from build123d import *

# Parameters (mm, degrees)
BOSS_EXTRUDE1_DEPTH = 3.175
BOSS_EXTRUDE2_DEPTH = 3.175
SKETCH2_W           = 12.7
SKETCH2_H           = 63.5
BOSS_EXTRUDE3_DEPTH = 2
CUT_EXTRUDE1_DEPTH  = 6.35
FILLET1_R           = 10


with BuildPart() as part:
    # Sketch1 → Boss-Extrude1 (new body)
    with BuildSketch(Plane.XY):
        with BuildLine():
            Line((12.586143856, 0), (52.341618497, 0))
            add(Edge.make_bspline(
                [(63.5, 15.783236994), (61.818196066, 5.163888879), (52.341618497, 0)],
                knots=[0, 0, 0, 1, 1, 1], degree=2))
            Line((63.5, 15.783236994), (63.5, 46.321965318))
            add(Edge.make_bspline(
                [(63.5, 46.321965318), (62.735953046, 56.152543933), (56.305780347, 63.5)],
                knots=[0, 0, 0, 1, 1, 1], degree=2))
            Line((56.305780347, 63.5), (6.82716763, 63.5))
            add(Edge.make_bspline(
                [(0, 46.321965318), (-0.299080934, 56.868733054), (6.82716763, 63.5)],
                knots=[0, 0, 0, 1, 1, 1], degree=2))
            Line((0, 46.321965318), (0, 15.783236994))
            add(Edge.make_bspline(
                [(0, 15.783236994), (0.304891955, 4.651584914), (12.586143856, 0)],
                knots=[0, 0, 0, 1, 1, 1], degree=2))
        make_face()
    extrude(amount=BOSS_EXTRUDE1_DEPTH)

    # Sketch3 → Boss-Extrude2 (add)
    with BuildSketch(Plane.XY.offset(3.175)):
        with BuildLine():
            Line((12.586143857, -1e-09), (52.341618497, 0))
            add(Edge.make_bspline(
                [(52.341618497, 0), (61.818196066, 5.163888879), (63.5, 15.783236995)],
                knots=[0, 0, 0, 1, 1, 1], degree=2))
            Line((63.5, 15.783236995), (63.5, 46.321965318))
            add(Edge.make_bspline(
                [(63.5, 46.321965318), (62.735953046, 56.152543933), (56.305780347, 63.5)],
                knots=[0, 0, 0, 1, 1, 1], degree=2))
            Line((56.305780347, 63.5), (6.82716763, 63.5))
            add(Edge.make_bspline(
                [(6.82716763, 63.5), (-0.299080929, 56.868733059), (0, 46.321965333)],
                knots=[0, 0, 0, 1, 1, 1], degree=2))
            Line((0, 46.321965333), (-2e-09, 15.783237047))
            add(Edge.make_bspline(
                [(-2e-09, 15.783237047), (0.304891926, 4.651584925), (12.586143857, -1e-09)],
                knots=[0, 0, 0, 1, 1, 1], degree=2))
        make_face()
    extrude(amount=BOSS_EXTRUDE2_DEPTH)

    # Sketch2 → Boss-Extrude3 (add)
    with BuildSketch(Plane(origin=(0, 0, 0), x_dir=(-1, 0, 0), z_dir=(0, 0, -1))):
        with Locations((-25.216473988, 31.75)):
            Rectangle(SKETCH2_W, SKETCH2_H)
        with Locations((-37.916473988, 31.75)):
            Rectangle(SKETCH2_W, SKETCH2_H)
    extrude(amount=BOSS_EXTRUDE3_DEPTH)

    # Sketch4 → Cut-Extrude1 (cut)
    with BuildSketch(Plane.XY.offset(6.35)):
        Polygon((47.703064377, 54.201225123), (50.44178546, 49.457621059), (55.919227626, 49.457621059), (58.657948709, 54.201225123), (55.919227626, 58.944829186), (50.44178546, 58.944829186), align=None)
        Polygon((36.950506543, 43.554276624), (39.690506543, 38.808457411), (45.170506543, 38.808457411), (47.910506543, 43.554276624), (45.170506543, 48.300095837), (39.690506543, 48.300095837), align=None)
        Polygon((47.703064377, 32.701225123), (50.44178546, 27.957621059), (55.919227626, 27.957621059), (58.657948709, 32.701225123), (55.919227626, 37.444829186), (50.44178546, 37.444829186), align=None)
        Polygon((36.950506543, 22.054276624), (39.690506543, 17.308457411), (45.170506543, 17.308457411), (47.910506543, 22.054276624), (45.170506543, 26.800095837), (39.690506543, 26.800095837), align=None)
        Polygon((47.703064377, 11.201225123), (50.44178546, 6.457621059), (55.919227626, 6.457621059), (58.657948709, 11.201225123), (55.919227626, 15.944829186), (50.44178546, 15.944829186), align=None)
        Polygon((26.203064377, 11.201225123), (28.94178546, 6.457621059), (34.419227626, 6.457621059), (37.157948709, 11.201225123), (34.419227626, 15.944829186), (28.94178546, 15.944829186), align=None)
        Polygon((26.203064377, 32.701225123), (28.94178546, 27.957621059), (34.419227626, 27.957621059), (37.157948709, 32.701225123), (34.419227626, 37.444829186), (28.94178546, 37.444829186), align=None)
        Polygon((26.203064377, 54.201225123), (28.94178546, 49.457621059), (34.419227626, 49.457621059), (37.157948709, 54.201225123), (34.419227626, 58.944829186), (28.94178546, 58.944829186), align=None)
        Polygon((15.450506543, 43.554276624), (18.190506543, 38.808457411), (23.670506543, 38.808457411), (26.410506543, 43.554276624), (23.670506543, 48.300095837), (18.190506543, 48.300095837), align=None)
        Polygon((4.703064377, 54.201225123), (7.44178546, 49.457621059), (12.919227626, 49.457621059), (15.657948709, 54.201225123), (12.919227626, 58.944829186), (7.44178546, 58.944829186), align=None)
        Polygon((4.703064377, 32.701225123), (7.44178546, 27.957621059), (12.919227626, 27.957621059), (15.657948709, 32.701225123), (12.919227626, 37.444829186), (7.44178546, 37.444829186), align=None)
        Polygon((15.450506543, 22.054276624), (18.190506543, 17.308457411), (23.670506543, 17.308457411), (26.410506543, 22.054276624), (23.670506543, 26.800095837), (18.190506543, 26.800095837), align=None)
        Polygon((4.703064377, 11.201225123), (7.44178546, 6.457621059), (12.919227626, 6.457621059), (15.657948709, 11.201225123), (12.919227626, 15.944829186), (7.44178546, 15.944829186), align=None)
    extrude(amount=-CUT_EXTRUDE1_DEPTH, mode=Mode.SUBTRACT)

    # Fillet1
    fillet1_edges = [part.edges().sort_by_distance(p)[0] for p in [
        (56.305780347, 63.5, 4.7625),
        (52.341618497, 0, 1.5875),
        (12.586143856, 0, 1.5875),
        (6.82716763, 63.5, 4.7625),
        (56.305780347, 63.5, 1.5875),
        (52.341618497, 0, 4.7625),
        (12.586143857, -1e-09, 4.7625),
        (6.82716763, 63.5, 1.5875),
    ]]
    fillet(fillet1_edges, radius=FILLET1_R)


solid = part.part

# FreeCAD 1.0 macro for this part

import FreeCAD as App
import Part
import Sketcher
Q = App.Units.Quantity


def edges_at(feature, points):
    """Names of the edges that pass closest to the given points."""
    edges = feature.Shape.Edges
    near = lambda p: min(range(len(edges)), key=lambda i: edges[i].distToShape(Part.Vertex(*p))[0])
    return sorted({f"Edge{near(p) + 1}" for p in points})

doc = App.newDocument("Part")
params = doc.addObject("Spreadsheet::Sheet", "Params")
for row, (alias, value) in enumerate([
    ("pad1_length", "0.125 in"),
    ("pad2_length", "0.125 in"),
    ("sketch3_width", "1 in"),
    ("sketch3_height", "2.5 in"),
    ("pad3_length", "2 mm"),
    ("pocket1_length", "0.25 in"),
    ("fillet_radius", "10 mm"),
], start=1):
    params.set(f"A{row}", alias)
    params.set(f"B{row}", "=" + value)
    params.setAlias(f"B{row}", alias)

body = doc.addObject("PartDesign::Body", "Body")

# Sketch on XY plane
sketch1 = body.newObject("Sketcher::SketchObject", "Sketch")
sketch1.AttachmentSupport = (doc.getObject("XY_Plane"), [""])
sketch1.MapMode = "FlatFace"
sketch1.addGeometry([
    Part.LineSegment(App.Vector(12.586144, 0, 0), App.Vector(52.341618, 0, 0)),  # 0
    Part.BSplineCurve([App.Vector(63.5, 15.783237, 0), App.Vector(61.818196, 5.163889, 0), App.Vector(52.341618, 0, 0)], [3, 3], [0, 1], False, 2, [1, 1, 1], False),  # 1
    Part.LineSegment(App.Vector(63.5, 15.783237, 0), App.Vector(63.5, 46.321965, 0)),  # 2
    Part.BSplineCurve([App.Vector(63.5, 46.321965, 0), App.Vector(62.735953, 56.152544, 0), App.Vector(56.30578, 63.5, 0)], [3, 3], [0, 1], False, 2, [1, 1, 1], False),  # 3
    Part.LineSegment(App.Vector(56.30578, 63.5, 0), App.Vector(6.827168, 63.5, 0)),  # 4
    Part.BSplineCurve([App.Vector(0, 46.321965, 0), App.Vector(-0.299081, 56.868733, 0), App.Vector(6.827168, 63.5, 0)], [3, 3], [0, 1], False, 2, [1, 1, 1], False),  # 5
    Part.LineSegment(App.Vector(0, 46.321965, 0), App.Vector(0, 15.783237, 0)),  # 6
    Part.BSplineCurve([App.Vector(0, 15.783237, 0), App.Vector(0.304892, 4.651585, 0), App.Vector(12.586144, 0, 0)], [3, 3], [0, 1], False, 2, [1, 1, 1], False),  # 7
], False)
sketch1.addConstraint([
    Sketcher.Constraint("Block", 1),
    Sketcher.Constraint("Block", 3),
    Sketcher.Constraint("Block", 5),
    Sketcher.Constraint("Block", 7),
    Sketcher.Constraint("Coincident", 0, 2, 1, 2),
    Sketcher.Constraint("Coincident", 1, 1, 2, 1),
    Sketcher.Constraint("Coincident", 2, 2, 3, 1),
    Sketcher.Constraint("Coincident", 3, 2, 4, 1),
    Sketcher.Constraint("Coincident", 4, 2, 5, 2),
    Sketcher.Constraint("Coincident", 5, 1, 6, 1),
    Sketcher.Constraint("Coincident", 6, 2, 7, 1),
    Sketcher.Constraint("Coincident", 7, 2, 0, 1),
])
pad1 = body.newObject("PartDesign::Pad", "Pad")
pad1.Profile = sketch1
pad1.setExpression("Length", "Params.pad1_length")

# Sketch on XY plane
sketch2 = body.newObject("Sketcher::SketchObject", "Sketch001")
sketch2.AttachmentSupport = (doc.getObject("XY_Plane"), [""])
sketch2.MapMode = "FlatFace"
sketch2.AttachmentOffset = App.Placement(App.Vector(0, 0, 0.125 * 25.4), App.Rotation())
sketch2.addGeometry([
    Part.LineSegment(App.Vector(12.586144, 0, 0), App.Vector(52.341618, 0, 0)),  # 0
    Part.BSplineCurve([App.Vector(52.341618, 0, 0), App.Vector(61.818196, 5.163889, 0), App.Vector(63.5, 15.783237, 0)], [3, 3], [0, 1], False, 2, [1, 1, 1], False),  # 1
    Part.LineSegment(App.Vector(63.5, 15.783237, 0), App.Vector(63.5, 46.321965, 0)),  # 2
    Part.BSplineCurve([App.Vector(63.5, 46.321965, 0), App.Vector(62.735953, 56.152544, 0), App.Vector(56.30578, 63.5, 0)], [3, 3], [0, 1], False, 2, [1, 1, 1], False),  # 3
    Part.LineSegment(App.Vector(56.30578, 63.5, 0), App.Vector(6.827168, 63.5, 0)),  # 4
    Part.BSplineCurve([App.Vector(6.827168, 63.5, 0), App.Vector(-0.299081, 56.868733, 0), App.Vector(0, 46.321965, 0)], [3, 3], [0, 1], False, 2, [1, 1, 1], False),  # 5
    Part.LineSegment(App.Vector(0, 46.321965, 0), App.Vector(0, 15.783237, 0)),  # 6
    Part.BSplineCurve([App.Vector(0, 15.783237, 0), App.Vector(0.304892, 4.651585, 0), App.Vector(12.586144, 0, 0)], [3, 3], [0, 1], False, 2, [1, 1, 1], False),  # 7
], False)
sketch2.addConstraint([
    Sketcher.Constraint("Block", 1),
    Sketcher.Constraint("Block", 3),
    Sketcher.Constraint("Block", 5),
    Sketcher.Constraint("Block", 7),
    Sketcher.Constraint("Coincident", 0, 2, 1, 1),
    Sketcher.Constraint("Coincident", 1, 2, 2, 1),
    Sketcher.Constraint("Coincident", 2, 2, 3, 1),
    Sketcher.Constraint("Coincident", 3, 2, 4, 1),
    Sketcher.Constraint("Coincident", 4, 2, 5, 1),
    Sketcher.Constraint("Coincident", 5, 2, 6, 1),
    Sketcher.Constraint("Coincident", 6, 2, 7, 1),
    Sketcher.Constraint("Coincident", 7, 2, 0, 1),
])
pad2 = body.newObject("PartDesign::Pad", "Pad001")
pad2.Profile = sketch2
pad2.setExpression("Length", "Params.pad2_length")

# Sketch on XY plane
sketch3 = body.newObject("Sketcher::SketchObject", "Sketch002")
sketch3.AttachmentSupport = (doc.getObject("XY_Plane"), [""])
sketch3.MapMode = "FlatFace"
sketch3.addGeometry([
    Part.LineSegment(App.Vector(19, 0, 0), App.Vector(19, 64, 0)),
    Part.LineSegment(App.Vector(19, 64, 0), App.Vector(44, 64, 0)),
    Part.LineSegment(App.Vector(44, 64, 0), App.Vector(44, 0, 0)),
    Part.LineSegment(App.Vector(44, 0, 0), App.Vector(19, 0, 0)),
], False)
sketch3.addConstraint([
    Sketcher.Constraint("Coincident", 0, 2, 1, 1),
    Sketcher.Constraint("Coincident", 1, 2, 2, 1),
    Sketcher.Constraint("Coincident", 2, 2, 3, 1),
    Sketcher.Constraint("Coincident", 3, 2, 0, 1),
    Sketcher.Constraint("Vertical", 0),
    Sketcher.Constraint("Horizontal", 1),
    Sketcher.Constraint("Vertical", 2),
    Sketcher.Constraint("Horizontal", 3),
    Sketcher.Constraint("PointOnObject", 2, 2, -1),
    Sketcher.Constraint("DistanceX", 1, 1, 1, 2, Q("1 in")),
    Sketcher.Constraint("DistanceY", 0, 1, 0, 2, Q("2.5 in")),
    Sketcher.Constraint("DistanceX", -1, 1, 0, 2, Q("18.866474 mm")),
])
sketch3.setExpression("Constraints[9]", "Params.sketch3_width")
sketch3.setExpression("Constraints[10]", "Params.sketch3_height")
pad3 = body.newObject("PartDesign::Pad", "Pad002")
pad3.Profile = sketch3
pad3.setExpression("Length", "Params.pad3_length")
pad3.Reversed = True

# Sketch on XY plane
sketch4 = body.newObject("Sketcher::SketchObject", "Sketch003")
sketch4.AttachmentSupport = (doc.getObject("XY_Plane"), [""])
sketch4.MapMode = "FlatFace"
sketch4.AttachmentOffset = App.Placement(App.Vector(0, 0, 0.25 * 25.4), App.Rotation())
sketch4.addGeometry([
    Part.LineSegment(App.Vector(48, 54, 0), App.Vector(50, 49, 0)),  # 0
    Part.LineSegment(App.Vector(50, 49, 0), App.Vector(56, 49, 0)),  # 1
    Part.LineSegment(App.Vector(56, 49, 0), App.Vector(59, 54, 0)),  # 2
    Part.LineSegment(App.Vector(59, 54, 0), App.Vector(56, 59, 0)),  # 3
    Part.LineSegment(App.Vector(56, 59, 0), App.Vector(50, 59, 0)),  # 4
    Part.LineSegment(App.Vector(50, 59, 0), App.Vector(48, 54, 0)),  # 5
    Part.LineSegment(App.Vector(37, 44, 0), App.Vector(40, 39, 0)),  # 6
    Part.LineSegment(App.Vector(40, 39, 0), App.Vector(45, 39, 0)),  # 7
    Part.LineSegment(App.Vector(45, 39, 0), App.Vector(48, 44, 0)),  # 8
    Part.LineSegment(App.Vector(48, 44, 0), App.Vector(45, 48, 0)),  # 9
    Part.LineSegment(App.Vector(45, 48, 0), App.Vector(40, 48, 0)),  # 10
    Part.LineSegment(App.Vector(40, 48, 0), App.Vector(37, 44, 0)),  # 11
    Part.LineSegment(App.Vector(48, 33, 0), App.Vector(50, 28, 0)),  # 12
    Part.LineSegment(App.Vector(50, 28, 0), App.Vector(56, 28, 0)),  # 13
    Part.LineSegment(App.Vector(56, 28, 0), App.Vector(59, 33, 0)),  # 14
    Part.LineSegment(App.Vector(59, 33, 0), App.Vector(56, 37, 0)),  # 15
    Part.LineSegment(App.Vector(56, 37, 0), App.Vector(50, 37, 0)),  # 16
    Part.LineSegment(App.Vector(50, 37, 0), App.Vector(48, 33, 0)),  # 17
    Part.LineSegment(App.Vector(37, 22, 0), App.Vector(40, 17, 0)),  # 18
    Part.LineSegment(App.Vector(40, 17, 0), App.Vector(45, 17, 0)),  # 19
    Part.LineSegment(App.Vector(45, 17, 0), App.Vector(48, 22, 0)),  # 20
    Part.LineSegment(App.Vector(48, 22, 0), App.Vector(45, 27, 0)),  # 21
    Part.LineSegment(App.Vector(45, 27, 0), App.Vector(40, 27, 0)),  # 22
    Part.LineSegment(App.Vector(40, 27, 0), App.Vector(37, 22, 0)),  # 23
    Part.LineSegment(App.Vector(48, 11, 0), App.Vector(50, 6, 0)),  # 24
    Part.LineSegment(App.Vector(50, 6, 0), App.Vector(56, 6, 0)),  # 25
    Part.LineSegment(App.Vector(56, 6, 0), App.Vector(59, 11, 0)),  # 26
    Part.LineSegment(App.Vector(59, 11, 0), App.Vector(56, 16, 0)),  # 27
    Part.LineSegment(App.Vector(56, 16, 0), App.Vector(50, 16, 0)),  # 28
    Part.LineSegment(App.Vector(50, 16, 0), App.Vector(48, 11, 0)),  # 29
    Part.LineSegment(App.Vector(26, 11, 0), App.Vector(29, 6, 0)),  # 30
    Part.LineSegment(App.Vector(29, 6, 0), App.Vector(34, 6, 0)),  # 31
    Part.LineSegment(App.Vector(34, 6, 0), App.Vector(37, 11, 0)),  # 32
    Part.LineSegment(App.Vector(37, 11, 0), App.Vector(34, 16, 0)),  # 33
    Part.LineSegment(App.Vector(34, 16, 0), App.Vector(29, 16, 0)),  # 34
    Part.LineSegment(App.Vector(29, 16, 0), App.Vector(26, 11, 0)),  # 35
    Part.LineSegment(App.Vector(26, 33, 0), App.Vector(29, 28, 0)),  # 36
    Part.LineSegment(App.Vector(29, 28, 0), App.Vector(34, 28, 0)),  # 37
    Part.LineSegment(App.Vector(34, 28, 0), App.Vector(37, 33, 0)),  # 38
    Part.LineSegment(App.Vector(37, 33, 0), App.Vector(34, 37, 0)),  # 39
    Part.LineSegment(App.Vector(34, 37, 0), App.Vector(29, 37, 0)),  # 40
    Part.LineSegment(App.Vector(29, 37, 0), App.Vector(26, 33, 0)),  # 41
    Part.LineSegment(App.Vector(26, 54, 0), App.Vector(29, 49, 0)),  # 42
    Part.LineSegment(App.Vector(29, 49, 0), App.Vector(34, 49, 0)),  # 43
    Part.LineSegment(App.Vector(34, 49, 0), App.Vector(37, 54, 0)),  # 44
    Part.LineSegment(App.Vector(37, 54, 0), App.Vector(34, 59, 0)),  # 45
    Part.LineSegment(App.Vector(34, 59, 0), App.Vector(29, 59, 0)),  # 46
    Part.LineSegment(App.Vector(29, 59, 0), App.Vector(26, 54, 0)),  # 47
    Part.LineSegment(App.Vector(15, 44, 0), App.Vector(18, 39, 0)),  # 48
    Part.LineSegment(App.Vector(18, 39, 0), App.Vector(24, 39, 0)),  # 49
    Part.LineSegment(App.Vector(24, 39, 0), App.Vector(26, 44, 0)),  # 50
    Part.LineSegment(App.Vector(26, 44, 0), App.Vector(24, 48, 0)),  # 51
    Part.LineSegment(App.Vector(24, 48, 0), App.Vector(18, 48, 0)),  # 52
    Part.LineSegment(App.Vector(18, 48, 0), App.Vector(15, 44, 0)),  # 53
    Part.LineSegment(App.Vector(5, 54, 0), App.Vector(7, 49, 0)),  # 54
    Part.LineSegment(App.Vector(7, 49, 0), App.Vector(13, 49, 0)),  # 55
    Part.LineSegment(App.Vector(13, 49, 0), App.Vector(16, 54, 0)),  # 56
    Part.LineSegment(App.Vector(16, 54, 0), App.Vector(13, 59, 0)),  # 57
    Part.LineSegment(App.Vector(13, 59, 0), App.Vector(7, 59, 0)),  # 58
    Part.LineSegment(App.Vector(7, 59, 0), App.Vector(5, 54, 0)),  # 59
    Part.LineSegment(App.Vector(5, 33, 0), App.Vector(7, 28, 0)),  # 60
    Part.LineSegment(App.Vector(7, 28, 0), App.Vector(13, 28, 0)),  # 61
    Part.LineSegment(App.Vector(13, 28, 0), App.Vector(16, 33, 0)),  # 62
    Part.LineSegment(App.Vector(16, 33, 0), App.Vector(13, 37, 0)),  # 63
    Part.LineSegment(App.Vector(13, 37, 0), App.Vector(7, 37, 0)),  # 64
    Part.LineSegment(App.Vector(7, 37, 0), App.Vector(5, 33, 0)),  # 65
    Part.LineSegment(App.Vector(15, 22, 0), App.Vector(18, 17, 0)),  # 66
    Part.LineSegment(App.Vector(18, 17, 0), App.Vector(24, 17, 0)),  # 67
    Part.LineSegment(App.Vector(24, 17, 0), App.Vector(26, 22, 0)),  # 68
    Part.LineSegment(App.Vector(26, 22, 0), App.Vector(24, 27, 0)),  # 69
    Part.LineSegment(App.Vector(24, 27, 0), App.Vector(18, 27, 0)),  # 70
    Part.LineSegment(App.Vector(18, 27, 0), App.Vector(15, 22, 0)),  # 71
    Part.LineSegment(App.Vector(5, 11, 0), App.Vector(7, 6, 0)),  # 72
    Part.LineSegment(App.Vector(7, 6, 0), App.Vector(13, 6, 0)),  # 73
    Part.LineSegment(App.Vector(13, 6, 0), App.Vector(16, 11, 0)),  # 74
    Part.LineSegment(App.Vector(16, 11, 0), App.Vector(13, 16, 0)),  # 75
    Part.LineSegment(App.Vector(13, 16, 0), App.Vector(7, 16, 0)),  # 76
    Part.LineSegment(App.Vector(7, 16, 0), App.Vector(5, 11, 0)),  # 77
], False)
sketch4.addConstraint([
    Sketcher.Constraint("Coincident", 0, 2, 1, 1),
    Sketcher.Constraint("Coincident", 1, 2, 2, 1),
    Sketcher.Constraint("Coincident", 2, 2, 3, 1),
    Sketcher.Constraint("Coincident", 3, 2, 4, 1),
    Sketcher.Constraint("Coincident", 4, 2, 5, 1),
    Sketcher.Constraint("Coincident", 5, 2, 0, 1),
    Sketcher.Constraint("Coincident", 6, 2, 7, 1),
    Sketcher.Constraint("Coincident", 7, 2, 8, 1),
    Sketcher.Constraint("Coincident", 8, 2, 9, 1),
    Sketcher.Constraint("Coincident", 9, 2, 10, 1),
    Sketcher.Constraint("Coincident", 10, 2, 11, 1),
    Sketcher.Constraint("Coincident", 11, 2, 6, 1),
    Sketcher.Constraint("Coincident", 12, 2, 13, 1),
    Sketcher.Constraint("Coincident", 13, 2, 14, 1),
    Sketcher.Constraint("Coincident", 14, 2, 15, 1),
    Sketcher.Constraint("Coincident", 15, 2, 16, 1),
    Sketcher.Constraint("Coincident", 16, 2, 17, 1),
    Sketcher.Constraint("Coincident", 17, 2, 12, 1),
    Sketcher.Constraint("Coincident", 18, 2, 19, 1),
    Sketcher.Constraint("Coincident", 19, 2, 20, 1),
    Sketcher.Constraint("Coincident", 20, 2, 21, 1),
    Sketcher.Constraint("Coincident", 21, 2, 22, 1),
    Sketcher.Constraint("Coincident", 22, 2, 23, 1),
    Sketcher.Constraint("Coincident", 23, 2, 18, 1),
    Sketcher.Constraint("Coincident", 24, 2, 25, 1),
    Sketcher.Constraint("Coincident", 25, 2, 26, 1),
    Sketcher.Constraint("Coincident", 26, 2, 27, 1),
    Sketcher.Constraint("Coincident", 27, 2, 28, 1),
    Sketcher.Constraint("Coincident", 28, 2, 29, 1),
    Sketcher.Constraint("Coincident", 29, 2, 24, 1),
    Sketcher.Constraint("Coincident", 30, 2, 31, 1),
    Sketcher.Constraint("Coincident", 31, 2, 32, 1),
    Sketcher.Constraint("Coincident", 32, 2, 33, 1),
    Sketcher.Constraint("Coincident", 33, 2, 34, 1),
    Sketcher.Constraint("Coincident", 34, 2, 35, 1),
    Sketcher.Constraint("Coincident", 35, 2, 30, 1),
    Sketcher.Constraint("Coincident", 36, 2, 37, 1),
    Sketcher.Constraint("Coincident", 37, 2, 38, 1),
    Sketcher.Constraint("Coincident", 38, 2, 39, 1),
    Sketcher.Constraint("Coincident", 39, 2, 40, 1),
    Sketcher.Constraint("Coincident", 40, 2, 41, 1),
    Sketcher.Constraint("Coincident", 41, 2, 36, 1),
    Sketcher.Constraint("Coincident", 42, 2, 43, 1),
    Sketcher.Constraint("Coincident", 43, 2, 44, 1),
    Sketcher.Constraint("Coincident", 44, 2, 45, 1),
    Sketcher.Constraint("Coincident", 45, 2, 46, 1),
    Sketcher.Constraint("Coincident", 46, 2, 47, 1),
    Sketcher.Constraint("Coincident", 47, 2, 42, 1),
    Sketcher.Constraint("Coincident", 48, 2, 49, 1),
    Sketcher.Constraint("Coincident", 49, 2, 50, 1),
    Sketcher.Constraint("Coincident", 50, 2, 51, 1),
    Sketcher.Constraint("Coincident", 51, 2, 52, 1),
    Sketcher.Constraint("Coincident", 52, 2, 53, 1),
    Sketcher.Constraint("Coincident", 53, 2, 48, 1),
    Sketcher.Constraint("Coincident", 54, 2, 55, 1),
    Sketcher.Constraint("Coincident", 55, 2, 56, 1),
    Sketcher.Constraint("Coincident", 56, 2, 57, 1),
    Sketcher.Constraint("Coincident", 57, 2, 58, 1),
    Sketcher.Constraint("Coincident", 58, 2, 59, 1),
    Sketcher.Constraint("Coincident", 59, 2, 54, 1),
    Sketcher.Constraint("Coincident", 60, 2, 61, 1),
    Sketcher.Constraint("Coincident", 61, 2, 62, 1),
    Sketcher.Constraint("Coincident", 62, 2, 63, 1),
    Sketcher.Constraint("Coincident", 63, 2, 64, 1),
    Sketcher.Constraint("Coincident", 64, 2, 65, 1),
    Sketcher.Constraint("Coincident", 65, 2, 60, 1),
    Sketcher.Constraint("Coincident", 66, 2, 67, 1),
    Sketcher.Constraint("Coincident", 67, 2, 68, 1),
    Sketcher.Constraint("Coincident", 68, 2, 69, 1),
    Sketcher.Constraint("Coincident", 69, 2, 70, 1),
    Sketcher.Constraint("Coincident", 70, 2, 71, 1),
    Sketcher.Constraint("Coincident", 71, 2, 66, 1),
    Sketcher.Constraint("Coincident", 72, 2, 73, 1),
    Sketcher.Constraint("Coincident", 73, 2, 74, 1),
    Sketcher.Constraint("Coincident", 74, 2, 75, 1),
    Sketcher.Constraint("Coincident", 75, 2, 76, 1),
    Sketcher.Constraint("Coincident", 76, 2, 77, 1),
    Sketcher.Constraint("Coincident", 77, 2, 72, 1),
    Sketcher.Constraint("Horizontal", 1),
    Sketcher.Constraint("Horizontal", 4),
    Sketcher.Constraint("Horizontal", 7),
    Sketcher.Constraint("Horizontal", 10),
    Sketcher.Constraint("Horizontal", 13),
    Sketcher.Constraint("Horizontal", 16),
    Sketcher.Constraint("Horizontal", 19),
    Sketcher.Constraint("Horizontal", 22),
    Sketcher.Constraint("Horizontal", 25),
    Sketcher.Constraint("Horizontal", 28),
    Sketcher.Constraint("Horizontal", 31),
    Sketcher.Constraint("Horizontal", 34),
    Sketcher.Constraint("Horizontal", 37),
    Sketcher.Constraint("Horizontal", 40),
    Sketcher.Constraint("Horizontal", 43),
    Sketcher.Constraint("Horizontal", 46),
    Sketcher.Constraint("Horizontal", 49),
    Sketcher.Constraint("Horizontal", 52),
    Sketcher.Constraint("Horizontal", 55),
    Sketcher.Constraint("Horizontal", 58),
    Sketcher.Constraint("Horizontal", 61),
    Sketcher.Constraint("Horizontal", 64),
    Sketcher.Constraint("Horizontal", 67),
    Sketcher.Constraint("Horizontal", 70),
    Sketcher.Constraint("Horizontal", 73),
    Sketcher.Constraint("Horizontal", 76),
    Sketcher.Constraint("Parallel", 0, 3),
    Sketcher.Constraint("Parallel", 2, 5),
    Sketcher.Constraint("Parallel", 3, 6),
    Sketcher.Constraint("Parallel", 5, 8),
    Sketcher.Constraint("Parallel", 6, 9),
    Sketcher.Constraint("Parallel", 8, 11),
    Sketcher.Constraint("Parallel", 9, 12),
    Sketcher.Constraint("Parallel", 11, 14),
    Sketcher.Constraint("Parallel", 12, 15),
    Sketcher.Constraint("Parallel", 14, 17),
    Sketcher.Constraint("Parallel", 15, 18),
    Sketcher.Constraint("Parallel", 17, 20),
    Sketcher.Constraint("Parallel", 18, 21),
    Sketcher.Constraint("Parallel", 20, 23),
    Sketcher.Constraint("Parallel", 21, 24),
    Sketcher.Constraint("Parallel", 23, 26),
    Sketcher.Constraint("Parallel", 24, 27),
    Sketcher.Constraint("Parallel", 26, 29),
    Sketcher.Constraint("Parallel", 27, 30),
    Sketcher.Constraint("Parallel", 29, 32),
    Sketcher.Constraint("Parallel", 30, 33),
    Sketcher.Constraint("Parallel", 32, 35),
    Sketcher.Constraint("Parallel", 33, 36),
    Sketcher.Constraint("Parallel", 35, 38),
    Sketcher.Constraint("Parallel", 36, 39),
    Sketcher.Constraint("Parallel", 38, 41),
    Sketcher.Constraint("Parallel", 39, 42),
    Sketcher.Constraint("Parallel", 41, 44),
    Sketcher.Constraint("Parallel", 42, 45),
    Sketcher.Constraint("Parallel", 44, 47),
    Sketcher.Constraint("Parallel", 45, 48),
    Sketcher.Constraint("Parallel", 47, 50),
    Sketcher.Constraint("Parallel", 48, 51),
    Sketcher.Constraint("Parallel", 50, 53),
    Sketcher.Constraint("Parallel", 51, 54),
    Sketcher.Constraint("Parallel", 53, 56),
    Sketcher.Constraint("Parallel", 54, 57),
    Sketcher.Constraint("Parallel", 56, 59),
    Sketcher.Constraint("Parallel", 57, 60),
    Sketcher.Constraint("Parallel", 59, 62),
    Sketcher.Constraint("Parallel", 60, 63),
    Sketcher.Constraint("Parallel", 62, 65),
    Sketcher.Constraint("Parallel", 63, 66),
    Sketcher.Constraint("Parallel", 65, 68),
    Sketcher.Constraint("Parallel", 66, 69),
    Sketcher.Constraint("Parallel", 68, 71),
    Sketcher.Constraint("Parallel", 69, 72),
    Sketcher.Constraint("Parallel", 71, 74),
    Sketcher.Constraint("Parallel", 72, 75),
    Sketcher.Constraint("Parallel", 74, 77),
    Sketcher.Constraint("Horizontal", 2, 2, 5, 2),
    Sketcher.Constraint("Horizontal", 8, 2, 11, 2),
    Sketcher.Constraint("Horizontal", 14, 2, 17, 2),
    Sketcher.Constraint("Horizontal", 20, 2, 23, 2),
    Sketcher.Constraint("Horizontal", 26, 2, 29, 2),
    Sketcher.Constraint("Horizontal", 25, 2, 30, 2),
    Sketcher.Constraint("Horizontal", 29, 2, 32, 2),
    Sketcher.Constraint("Horizontal", 28, 2, 33, 2),
    Sketcher.Constraint("Horizontal", 32, 2, 35, 2),
    Sketcher.Constraint("Horizontal", 13, 2, 36, 2),
    Sketcher.Constraint("Horizontal", 17, 2, 38, 2),
    Sketcher.Constraint("Horizontal", 16, 2, 39, 2),
    Sketcher.Constraint("Horizontal", 38, 2, 41, 2),
    Sketcher.Constraint("Horizontal", 1, 2, 42, 2),
    Sketcher.Constraint("Horizontal", 5, 2, 44, 2),
    Sketcher.Constraint("Horizontal", 4, 2, 45, 2),
    Sketcher.Constraint("Horizontal", 44, 2, 47, 2),
    Sketcher.Constraint("Horizontal", 7, 2, 48, 2),
    Sketcher.Constraint("Horizontal", 11, 2, 50, 2),
    Sketcher.Constraint("Horizontal", 10, 2, 51, 2),
    Sketcher.Constraint("Horizontal", 50, 2, 53, 2),
    Sketcher.Constraint("Horizontal", 43, 2, 54, 2),
    Sketcher.Constraint("Horizontal", 47, 2, 56, 2),
    Sketcher.Constraint("Horizontal", 46, 2, 57, 2),
    Sketcher.Constraint("Horizontal", 56, 2, 59, 2),
    Sketcher.Constraint("Horizontal", 37, 2, 60, 2),
    Sketcher.Constraint("Horizontal", 41, 2, 62, 2),
    Sketcher.Constraint("Horizontal", 40, 2, 63, 2),
    Sketcher.Constraint("Horizontal", 62, 2, 65, 2),
    Sketcher.Constraint("Horizontal", 19, 2, 66, 2),
    Sketcher.Constraint("Horizontal", 23, 2, 68, 2),
    Sketcher.Constraint("Horizontal", 22, 2, 69, 2),
    Sketcher.Constraint("Horizontal", 68, 2, 71, 2),
    Sketcher.Constraint("Horizontal", 31, 2, 72, 2),
    Sketcher.Constraint("Horizontal", 35, 2, 74, 2),
    Sketcher.Constraint("Horizontal", 34, 2, 75, 2),
    Sketcher.Constraint("Horizontal", 74, 2, 77, 2),
    Sketcher.Constraint("Vertical", 1, 2, 3, 2),
    Sketcher.Constraint("Vertical", 0, 2, 4, 2),
    Sketcher.Constraint("Vertical", 7, 2, 9, 2),
    Sketcher.Constraint("Vertical", 4, 2, 12, 2),
    Sketcher.Constraint("Vertical", 3, 2, 13, 2),
    Sketcher.Constraint("Vertical", 2, 2, 14, 2),
    Sketcher.Constraint("Vertical", 13, 2, 15, 2),
    Sketcher.Constraint("Vertical", 10, 2, 18, 2),
    Sketcher.Constraint("Vertical", 9, 2, 19, 2),
    Sketcher.Constraint("Vertical", 8, 2, 20, 2),
    Sketcher.Constraint("Vertical", 19, 2, 21, 2),
    Sketcher.Constraint("Vertical", 16, 2, 24, 2),
    Sketcher.Constraint("Vertical", 15, 2, 25, 2),
    Sketcher.Constraint("Vertical", 14, 2, 26, 2),
    Sketcher.Constraint("Vertical", 25, 2, 27, 2),
    Sketcher.Constraint("Vertical", 34, 2, 36, 2),
    Sketcher.Constraint("Vertical", 33, 2, 37, 2),
    Sketcher.Constraint("Vertical", 40, 2, 42, 2),
    Sketcher.Constraint("Vertical", 39, 2, 43, 2),
    Sketcher.Constraint("Vertical", 58, 2, 60, 2),
    Sketcher.Constraint("Vertical", 57, 2, 61, 2),
    Sketcher.Constraint("Vertical", 52, 2, 66, 2),
    Sketcher.Constraint("Vertical", 51, 2, 67, 2),
    Sketcher.Constraint("Vertical", 64, 2, 72, 2),
    Sketcher.Constraint("Vertical", 63, 2, 73, 2),
    Sketcher.Constraint("Equal", 28, 31),
    Sketcher.Constraint("Equal", 22, 49),
    Sketcher.Constraint("Equal", 46, 55),
    Sketcher.Constraint("Angle", 0, Q("-60 deg")),
    Sketcher.Constraint("DistanceX", 7, 1, 7, 2, Q("5.48 mm")),
    Sketcher.Constraint("Distance", 6, Q("5.48 mm")),
    Sketcher.Constraint("DistanceX", 1, 1, 1, 2, Q("5.477442 mm")),
    Sketcher.Constraint("DistanceY", -1, 1, 0, 2, Q("49.457621 mm")),
    Sketcher.Constraint("DistanceX", -1, 1, 2, 2, Q("58.657949 mm")),
    Sketcher.Constraint("DistanceY", -1, 1, 3, 2, Q("58.944829 mm")),
    Sketcher.Constraint("DistanceY", -1, 1, 12, 2, Q("27.957621 mm")),
    Sketcher.Constraint("DistanceY", -1, 1, 24, 2, Q("6.457621 mm")),
    Sketcher.Constraint("DistanceX", -1, 1, 32, 2, Q("37.157949 mm")),
    Sketcher.Constraint("DistanceX", -1, 1, 56, 2, Q("15.657949 mm")),
    Sketcher.Constraint("DistanceX", -1, 1, 6, 2, Q("39.690507 mm")),
    Sketcher.Constraint("DistanceY", -1, 1, 6, 2, Q("38.808457 mm")),
    Sketcher.Constraint("DistanceY", -1, 1, 18, 2, Q("17.308457 mm")),
    Sketcher.Constraint("DistanceX", -1, 1, 48, 2, Q("18.190507 mm")),
])
pocket1 = body.newObject("PartDesign::Pocket", "Pocket")
pocket1.Profile = sketch4
pocket1.setExpression("Length", "Params.pocket1_length")
doc.recompute()

fillet = body.newObject("PartDesign::Fillet", "Fillet")
fillet.Base = (pocket1, edges_at(pocket1, [
    (56.306, 63.5, 4.763),
    (52.342, 0, 1.587),
    (12.586, 0, 1.587),
    (6.827, 63.5, 4.763),
    (56.306, 63.5, 1.587),
    (52.342, 0, 4.763),
    (12.586, 0, 4.763),
    (6.827, 63.5, 1.587),
]))
fillet.setExpression("Radius", "Params.fillet_radius")

doc.recompute()
